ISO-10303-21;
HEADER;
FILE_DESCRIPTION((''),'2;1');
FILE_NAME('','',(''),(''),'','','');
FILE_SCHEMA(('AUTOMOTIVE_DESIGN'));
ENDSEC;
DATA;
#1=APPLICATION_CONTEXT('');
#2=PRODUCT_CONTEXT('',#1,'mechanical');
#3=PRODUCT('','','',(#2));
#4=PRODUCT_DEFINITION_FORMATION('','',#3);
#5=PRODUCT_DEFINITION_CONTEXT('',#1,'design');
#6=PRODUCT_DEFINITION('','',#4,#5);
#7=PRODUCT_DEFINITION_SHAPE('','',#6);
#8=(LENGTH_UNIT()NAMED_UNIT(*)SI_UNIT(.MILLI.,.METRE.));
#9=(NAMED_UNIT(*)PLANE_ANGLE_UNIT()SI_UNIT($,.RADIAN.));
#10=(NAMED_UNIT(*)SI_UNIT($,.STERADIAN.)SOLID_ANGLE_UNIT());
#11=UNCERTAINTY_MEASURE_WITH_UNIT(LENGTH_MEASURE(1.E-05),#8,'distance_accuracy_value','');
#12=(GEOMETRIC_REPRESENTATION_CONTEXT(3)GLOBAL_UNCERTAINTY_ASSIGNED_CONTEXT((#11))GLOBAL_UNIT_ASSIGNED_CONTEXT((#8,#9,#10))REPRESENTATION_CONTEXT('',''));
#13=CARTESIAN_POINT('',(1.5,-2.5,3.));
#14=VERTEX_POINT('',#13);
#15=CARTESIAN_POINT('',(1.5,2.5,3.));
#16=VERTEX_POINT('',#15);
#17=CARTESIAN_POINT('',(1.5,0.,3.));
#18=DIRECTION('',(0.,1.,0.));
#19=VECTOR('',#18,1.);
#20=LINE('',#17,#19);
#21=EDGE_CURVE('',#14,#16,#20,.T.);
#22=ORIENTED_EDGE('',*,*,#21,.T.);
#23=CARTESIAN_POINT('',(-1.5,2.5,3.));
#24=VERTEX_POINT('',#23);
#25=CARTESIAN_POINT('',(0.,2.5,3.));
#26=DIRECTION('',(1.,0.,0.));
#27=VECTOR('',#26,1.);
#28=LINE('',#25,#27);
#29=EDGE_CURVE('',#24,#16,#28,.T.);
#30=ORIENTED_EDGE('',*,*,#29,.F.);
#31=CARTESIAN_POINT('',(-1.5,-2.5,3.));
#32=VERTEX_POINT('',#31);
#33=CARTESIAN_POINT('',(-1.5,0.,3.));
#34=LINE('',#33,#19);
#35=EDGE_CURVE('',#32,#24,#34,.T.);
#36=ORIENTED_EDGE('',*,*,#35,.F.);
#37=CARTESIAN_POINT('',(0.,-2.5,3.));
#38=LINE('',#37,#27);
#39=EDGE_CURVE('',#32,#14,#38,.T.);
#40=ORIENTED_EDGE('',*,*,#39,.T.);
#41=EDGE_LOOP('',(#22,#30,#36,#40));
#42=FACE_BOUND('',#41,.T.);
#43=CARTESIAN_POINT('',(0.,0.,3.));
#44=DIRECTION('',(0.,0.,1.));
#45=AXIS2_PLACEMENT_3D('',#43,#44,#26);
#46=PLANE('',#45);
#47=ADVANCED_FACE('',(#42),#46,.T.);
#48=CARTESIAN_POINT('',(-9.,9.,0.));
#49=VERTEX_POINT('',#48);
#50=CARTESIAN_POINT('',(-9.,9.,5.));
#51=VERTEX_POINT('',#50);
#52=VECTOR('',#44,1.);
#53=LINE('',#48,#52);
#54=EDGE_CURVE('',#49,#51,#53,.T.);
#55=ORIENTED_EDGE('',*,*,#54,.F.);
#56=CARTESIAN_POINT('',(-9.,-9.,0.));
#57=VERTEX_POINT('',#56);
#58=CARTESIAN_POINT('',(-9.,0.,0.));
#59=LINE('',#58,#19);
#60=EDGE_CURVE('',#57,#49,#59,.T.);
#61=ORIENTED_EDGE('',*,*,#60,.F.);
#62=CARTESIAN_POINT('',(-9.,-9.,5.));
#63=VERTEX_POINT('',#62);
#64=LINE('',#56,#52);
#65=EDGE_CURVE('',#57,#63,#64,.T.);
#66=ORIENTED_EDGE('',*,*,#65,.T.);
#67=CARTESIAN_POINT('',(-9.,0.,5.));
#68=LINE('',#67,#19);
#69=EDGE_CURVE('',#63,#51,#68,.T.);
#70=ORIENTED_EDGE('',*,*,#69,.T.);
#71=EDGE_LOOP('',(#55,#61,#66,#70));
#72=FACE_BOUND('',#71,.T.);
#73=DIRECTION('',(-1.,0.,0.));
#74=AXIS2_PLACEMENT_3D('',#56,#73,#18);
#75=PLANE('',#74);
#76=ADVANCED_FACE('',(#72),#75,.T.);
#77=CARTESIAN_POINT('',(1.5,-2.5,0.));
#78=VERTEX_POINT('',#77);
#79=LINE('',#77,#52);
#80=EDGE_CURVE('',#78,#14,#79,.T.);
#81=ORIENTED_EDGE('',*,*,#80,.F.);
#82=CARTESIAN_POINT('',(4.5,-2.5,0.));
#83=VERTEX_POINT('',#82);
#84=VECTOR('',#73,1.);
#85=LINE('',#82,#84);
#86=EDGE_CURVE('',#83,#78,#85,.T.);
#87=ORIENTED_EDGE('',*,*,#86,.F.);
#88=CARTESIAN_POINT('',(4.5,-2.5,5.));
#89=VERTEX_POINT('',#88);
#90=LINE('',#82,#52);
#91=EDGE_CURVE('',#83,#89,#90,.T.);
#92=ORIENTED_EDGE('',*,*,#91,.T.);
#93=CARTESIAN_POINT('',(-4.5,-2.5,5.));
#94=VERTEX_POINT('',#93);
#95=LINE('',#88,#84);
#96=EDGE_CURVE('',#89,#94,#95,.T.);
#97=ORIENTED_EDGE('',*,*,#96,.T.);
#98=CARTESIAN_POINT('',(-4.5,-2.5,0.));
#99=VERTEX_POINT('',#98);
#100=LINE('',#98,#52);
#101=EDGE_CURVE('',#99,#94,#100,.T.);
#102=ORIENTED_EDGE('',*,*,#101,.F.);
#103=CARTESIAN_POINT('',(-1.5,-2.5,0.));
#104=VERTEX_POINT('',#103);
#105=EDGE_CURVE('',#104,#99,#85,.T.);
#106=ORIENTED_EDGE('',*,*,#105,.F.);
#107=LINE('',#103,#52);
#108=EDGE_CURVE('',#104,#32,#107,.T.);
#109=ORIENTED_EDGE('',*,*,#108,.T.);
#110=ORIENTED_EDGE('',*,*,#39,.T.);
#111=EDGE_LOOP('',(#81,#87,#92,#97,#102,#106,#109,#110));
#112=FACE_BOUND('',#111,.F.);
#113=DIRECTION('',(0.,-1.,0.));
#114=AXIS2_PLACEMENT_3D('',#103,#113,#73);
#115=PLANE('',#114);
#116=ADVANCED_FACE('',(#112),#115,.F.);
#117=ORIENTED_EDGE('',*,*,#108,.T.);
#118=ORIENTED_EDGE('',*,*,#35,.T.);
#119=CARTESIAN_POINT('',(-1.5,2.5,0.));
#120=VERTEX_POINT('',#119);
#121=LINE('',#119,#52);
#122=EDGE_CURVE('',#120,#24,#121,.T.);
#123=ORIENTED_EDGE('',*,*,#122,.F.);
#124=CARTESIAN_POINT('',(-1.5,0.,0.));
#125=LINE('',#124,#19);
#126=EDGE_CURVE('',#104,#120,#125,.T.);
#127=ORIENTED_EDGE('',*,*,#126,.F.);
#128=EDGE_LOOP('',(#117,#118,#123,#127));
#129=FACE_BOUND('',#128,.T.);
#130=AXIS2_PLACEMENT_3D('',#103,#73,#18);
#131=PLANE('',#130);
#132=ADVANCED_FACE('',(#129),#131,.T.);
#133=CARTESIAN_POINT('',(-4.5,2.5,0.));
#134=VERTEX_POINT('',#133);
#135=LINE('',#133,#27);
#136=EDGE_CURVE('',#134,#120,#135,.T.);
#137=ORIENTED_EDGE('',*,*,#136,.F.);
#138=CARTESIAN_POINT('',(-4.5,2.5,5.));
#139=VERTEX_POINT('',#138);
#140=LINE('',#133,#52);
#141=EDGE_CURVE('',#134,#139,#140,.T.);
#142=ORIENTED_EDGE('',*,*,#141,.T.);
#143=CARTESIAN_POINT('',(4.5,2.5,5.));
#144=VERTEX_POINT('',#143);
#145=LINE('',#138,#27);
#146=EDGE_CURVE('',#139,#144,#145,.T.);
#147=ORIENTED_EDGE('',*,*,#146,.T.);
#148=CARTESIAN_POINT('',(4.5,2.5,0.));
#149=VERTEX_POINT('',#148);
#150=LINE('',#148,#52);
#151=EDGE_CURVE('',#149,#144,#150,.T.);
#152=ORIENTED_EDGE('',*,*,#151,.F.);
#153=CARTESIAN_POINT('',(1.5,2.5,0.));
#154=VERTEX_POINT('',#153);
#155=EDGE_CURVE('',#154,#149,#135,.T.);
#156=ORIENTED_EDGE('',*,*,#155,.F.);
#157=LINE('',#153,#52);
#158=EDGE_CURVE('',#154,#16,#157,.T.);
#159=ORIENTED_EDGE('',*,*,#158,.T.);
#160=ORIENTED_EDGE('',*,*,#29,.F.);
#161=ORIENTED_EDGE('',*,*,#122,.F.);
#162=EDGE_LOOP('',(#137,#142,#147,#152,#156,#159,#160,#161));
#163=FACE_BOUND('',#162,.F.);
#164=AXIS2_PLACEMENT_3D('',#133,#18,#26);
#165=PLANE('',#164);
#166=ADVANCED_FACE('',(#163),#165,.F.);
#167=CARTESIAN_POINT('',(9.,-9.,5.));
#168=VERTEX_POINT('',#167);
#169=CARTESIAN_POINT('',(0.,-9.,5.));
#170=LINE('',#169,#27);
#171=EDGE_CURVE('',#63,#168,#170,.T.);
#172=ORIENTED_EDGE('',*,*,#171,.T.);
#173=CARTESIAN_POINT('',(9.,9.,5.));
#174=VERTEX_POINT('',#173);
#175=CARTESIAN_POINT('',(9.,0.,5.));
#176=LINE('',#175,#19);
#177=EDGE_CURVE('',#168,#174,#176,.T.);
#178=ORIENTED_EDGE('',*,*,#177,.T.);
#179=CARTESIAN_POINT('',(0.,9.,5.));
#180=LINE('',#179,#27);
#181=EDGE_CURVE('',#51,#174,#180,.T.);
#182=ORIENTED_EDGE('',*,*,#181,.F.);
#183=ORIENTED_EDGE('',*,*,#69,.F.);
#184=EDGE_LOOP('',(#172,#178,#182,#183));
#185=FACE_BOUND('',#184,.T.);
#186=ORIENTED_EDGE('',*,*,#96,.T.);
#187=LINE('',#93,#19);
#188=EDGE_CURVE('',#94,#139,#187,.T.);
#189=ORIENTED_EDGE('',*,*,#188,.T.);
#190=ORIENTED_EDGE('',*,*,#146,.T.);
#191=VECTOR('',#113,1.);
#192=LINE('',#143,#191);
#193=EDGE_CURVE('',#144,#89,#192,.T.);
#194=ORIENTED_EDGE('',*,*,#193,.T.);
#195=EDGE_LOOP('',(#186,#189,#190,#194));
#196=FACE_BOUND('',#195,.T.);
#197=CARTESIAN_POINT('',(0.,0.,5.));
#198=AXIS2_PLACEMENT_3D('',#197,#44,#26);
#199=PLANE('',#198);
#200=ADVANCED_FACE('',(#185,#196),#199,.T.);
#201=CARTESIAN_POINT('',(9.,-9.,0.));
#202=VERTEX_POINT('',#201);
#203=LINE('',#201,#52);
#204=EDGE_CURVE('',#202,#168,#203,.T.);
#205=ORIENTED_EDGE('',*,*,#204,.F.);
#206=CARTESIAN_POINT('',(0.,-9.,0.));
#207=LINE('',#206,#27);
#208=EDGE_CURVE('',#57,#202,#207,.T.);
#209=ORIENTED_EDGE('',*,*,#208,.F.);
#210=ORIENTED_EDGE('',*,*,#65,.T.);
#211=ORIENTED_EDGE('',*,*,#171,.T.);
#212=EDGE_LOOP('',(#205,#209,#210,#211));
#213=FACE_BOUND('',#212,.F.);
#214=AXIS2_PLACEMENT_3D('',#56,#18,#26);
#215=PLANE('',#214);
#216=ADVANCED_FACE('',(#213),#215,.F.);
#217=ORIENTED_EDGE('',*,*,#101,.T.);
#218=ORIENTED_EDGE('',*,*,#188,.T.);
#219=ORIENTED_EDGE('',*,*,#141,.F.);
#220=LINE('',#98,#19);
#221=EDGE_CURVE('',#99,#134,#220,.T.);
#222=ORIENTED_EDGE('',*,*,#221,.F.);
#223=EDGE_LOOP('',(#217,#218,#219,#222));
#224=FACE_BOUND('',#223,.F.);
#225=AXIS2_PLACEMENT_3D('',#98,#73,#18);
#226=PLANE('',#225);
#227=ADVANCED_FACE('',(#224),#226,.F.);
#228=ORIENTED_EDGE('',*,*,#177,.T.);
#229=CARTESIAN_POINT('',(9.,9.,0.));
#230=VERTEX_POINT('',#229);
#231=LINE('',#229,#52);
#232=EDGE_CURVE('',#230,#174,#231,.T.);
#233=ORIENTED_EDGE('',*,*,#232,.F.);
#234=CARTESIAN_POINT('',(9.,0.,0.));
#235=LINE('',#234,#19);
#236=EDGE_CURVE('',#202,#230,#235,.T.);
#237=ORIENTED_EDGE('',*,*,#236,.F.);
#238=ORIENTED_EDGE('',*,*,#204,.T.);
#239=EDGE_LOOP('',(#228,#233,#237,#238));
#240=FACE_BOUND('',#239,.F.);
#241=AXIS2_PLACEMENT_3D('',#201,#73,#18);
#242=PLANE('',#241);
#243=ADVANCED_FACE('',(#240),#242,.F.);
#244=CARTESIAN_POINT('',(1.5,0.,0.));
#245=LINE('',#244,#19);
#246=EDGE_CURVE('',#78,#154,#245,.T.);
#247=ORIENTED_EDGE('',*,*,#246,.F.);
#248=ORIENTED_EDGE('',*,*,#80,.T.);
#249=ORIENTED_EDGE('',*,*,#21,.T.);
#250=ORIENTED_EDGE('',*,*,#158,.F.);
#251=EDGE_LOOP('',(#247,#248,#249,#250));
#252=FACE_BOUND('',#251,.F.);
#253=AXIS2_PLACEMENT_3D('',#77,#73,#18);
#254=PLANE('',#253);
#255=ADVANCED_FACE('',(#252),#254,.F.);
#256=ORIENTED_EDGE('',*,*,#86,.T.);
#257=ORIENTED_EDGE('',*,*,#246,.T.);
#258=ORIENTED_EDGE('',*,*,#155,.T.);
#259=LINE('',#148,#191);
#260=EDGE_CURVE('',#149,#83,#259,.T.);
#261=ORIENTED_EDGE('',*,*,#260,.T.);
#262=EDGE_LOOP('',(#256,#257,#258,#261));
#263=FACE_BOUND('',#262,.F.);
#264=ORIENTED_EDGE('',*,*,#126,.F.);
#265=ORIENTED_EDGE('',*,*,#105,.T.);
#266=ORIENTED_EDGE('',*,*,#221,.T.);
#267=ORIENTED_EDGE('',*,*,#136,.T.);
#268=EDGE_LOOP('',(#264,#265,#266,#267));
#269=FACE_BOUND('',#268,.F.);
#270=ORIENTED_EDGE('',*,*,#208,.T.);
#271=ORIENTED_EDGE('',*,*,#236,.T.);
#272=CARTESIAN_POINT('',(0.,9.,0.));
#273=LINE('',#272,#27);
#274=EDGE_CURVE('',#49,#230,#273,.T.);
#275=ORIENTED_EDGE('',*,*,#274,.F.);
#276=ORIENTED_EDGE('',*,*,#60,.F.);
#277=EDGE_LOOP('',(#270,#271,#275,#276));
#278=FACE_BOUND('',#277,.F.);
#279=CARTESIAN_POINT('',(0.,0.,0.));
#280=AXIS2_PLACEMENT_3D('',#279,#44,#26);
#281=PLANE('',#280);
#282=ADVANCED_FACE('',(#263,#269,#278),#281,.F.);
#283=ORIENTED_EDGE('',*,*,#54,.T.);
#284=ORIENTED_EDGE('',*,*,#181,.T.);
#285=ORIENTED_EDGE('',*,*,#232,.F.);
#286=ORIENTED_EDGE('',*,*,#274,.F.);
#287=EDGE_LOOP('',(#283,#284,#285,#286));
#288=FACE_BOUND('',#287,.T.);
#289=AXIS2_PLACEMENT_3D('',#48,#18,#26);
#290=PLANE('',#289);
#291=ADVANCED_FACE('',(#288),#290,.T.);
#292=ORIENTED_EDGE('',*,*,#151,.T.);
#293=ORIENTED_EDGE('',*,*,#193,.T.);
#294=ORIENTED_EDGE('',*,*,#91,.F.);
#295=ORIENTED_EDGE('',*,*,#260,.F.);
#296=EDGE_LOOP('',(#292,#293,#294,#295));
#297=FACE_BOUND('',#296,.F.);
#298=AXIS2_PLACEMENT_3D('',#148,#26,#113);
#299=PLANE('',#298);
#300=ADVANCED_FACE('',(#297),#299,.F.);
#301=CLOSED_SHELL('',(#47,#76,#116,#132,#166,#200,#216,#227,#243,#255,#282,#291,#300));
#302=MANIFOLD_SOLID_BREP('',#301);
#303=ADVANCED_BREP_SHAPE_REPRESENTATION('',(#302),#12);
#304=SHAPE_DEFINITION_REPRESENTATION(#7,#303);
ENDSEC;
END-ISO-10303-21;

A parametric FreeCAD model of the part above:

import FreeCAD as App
import Part
import Sketcher

doc = App.newDocument("Part")
body = doc.addObject("PartDesign::Body", "Body")

# Sketch on XY plane
sketch1 = doc.addObject("Sketcher::SketchObject", "Sketch")
body.addObject(sketch1)
sketch1.AttachmentSupport = (doc.XY_Plane, [""])
sketch1.MapMode = "FlatFace"
sketch1.addGeometry([
    Part.LineSegment(App.Vector(-9, 9, 0), App.Vector(-9, -9, 0)),  # 0
    Part.LineSegment(App.Vector(-9, -9, 0), App.Vector(9, -9, 0)),  # 1
    Part.LineSegment(App.Vector(9, -9, 0), App.Vector(9, 9, 0)),  # 2
    Part.LineSegment(App.Vector(9, 9, 0), App.Vector(-9, 9, 0)),  # 3
    Part.LineSegment(App.Vector(-4.5, 2.5, 0), App.Vector(-1.5, 2.5, 0)),  # 4
    Part.LineSegment(App.Vector(-1.5, 2.5, 0), App.Vector(-1.5, -2.5, 0)),  # 5
    Part.LineSegment(App.Vector(-1.5, -2.5, 0), App.Vector(-4.5, -2.5, 0)),  # 6
    Part.LineSegment(App.Vector(-4.5, -2.5, 0), App.Vector(-4.5, 2.5, 0)),  # 7
    Part.LineSegment(App.Vector(1.5, 2.5, 0), App.Vector(4.5, 2.5, 0)),  # 8
    Part.LineSegment(App.Vector(4.5, 2.5, 0), App.Vector(4.5, -2.5, 0)),  # 9
    Part.LineSegment(App.Vector(4.5, -2.5, 0), App.Vector(1.5, -2.5, 0)),  # 10
    Part.LineSegment(App.Vector(1.5, -2.5, 0), App.Vector(1.5, 2.5, 0)),  # 11
], False)
sketch1.addConstraint([
    Sketcher.Constraint("Coincident", 0, 2, 1, 1),
    Sketcher.Constraint("Coincident", 1, 2, 2, 1),
    Sketcher.Constraint("Coincident", 2, 2, 3, 1),
    Sketcher.Constraint("Coincident", 3, 2, 0, 1),
    Sketcher.Constraint("Coincident", 4, 2, 5, 1),
    Sketcher.Constraint("Coincident", 5, 2, 6, 1),
    Sketcher.Constraint("Coincident", 6, 2, 7, 1),
    Sketcher.Constraint("Coincident", 7, 2, 4, 1),
    Sketcher.Constraint("Coincident", 8, 2, 9, 1),
    Sketcher.Constraint("Coincident", 9, 2, 10, 1),
    Sketcher.Constraint("Coincident", 10, 2, 11, 1),
    Sketcher.Constraint("Coincident", 11, 2, 8, 1),
    Sketcher.Constraint("Vertical", 0),
    Sketcher.Constraint("Horizontal", 1),
    Sketcher.Constraint("Vertical", 2),
    Sketcher.Constraint("Horizontal", 3),
    Sketcher.Constraint("Horizontal", 4),
    Sketcher.Constraint("Vertical", 5),
    Sketcher.Constraint("Horizontal", 6),
    Sketcher.Constraint("Vertical", 7),
    Sketcher.Constraint("Horizontal", 8),
    Sketcher.Constraint("Vertical", 9),
    Sketcher.Constraint("Horizontal", 10),
    Sketcher.Constraint("Vertical", 11),
    Sketcher.Constraint("Symmetric", 0, 2, 2, 2, -1, 1),
    Sketcher.Constraint("Symmetric", 6, 2, 8, 2, -1, 1),
    Sketcher.Constraint("Symmetric", 4, 2, 10, 2, -1, 1),
    Sketcher.Constraint("Horizontal", 7, 2, 8, 2),
    Sketcher.Constraint("Equal", 3, 0),
    Sketcher.Constraint("DistanceX", 1, 1, 1, 2, 18.0),
    Sketcher.Constraint("DistanceX", 4, 1, 4, 2, 3.0),
    Sketcher.Constraint("DistanceY", 5, 2, 5, 1, 5.0),
    Sketcher.Constraint("DistanceX", 4, 2, 8, 2, 6.0),
])
pad1 = doc.addObject("PartDesign::Pad", "Pad")
body.addObject(pad1)
pad1.Profile = sketch1
pad1.Length = 5

# Sketch on XY plane
sketch2 = doc.addObject("Sketcher::SketchObject", "Sketch001")
body.addObject(sketch2)
sketch2.AttachmentSupport = (doc.XY_Plane, [""])
sketch2.MapMode = "FlatFace"
sketch2.AttachmentOffset = App.Placement(App.Vector(0, 0, 5), App.Rotation())
sketch2.addGeometry([
    Part.LineSegment(App.Vector(-1.5, 2.5, 0), App.Vector(-1.5, -2.5, 0)),
    Part.LineSegment(App.Vector(-1.5, -2.5, 0), App.Vector(1.5, -2.5, 0)),
    Part.LineSegment(App.Vector(1.5, -2.5, 0), App.Vector(1.5, 2.5, 0)),
    Part.LineSegment(App.Vector(1.5, 2.5, 0), App.Vector(-1.5, 2.5, 0)),
], False)
sketch2.addConstraint([
    Sketcher.Constraint("Coincident", 0, 2, 1, 1),
    Sketcher.Constraint("Coincident", 1, 2, 2, 1),
    Sketcher.Constraint("Coincident", 2, 2, 3, 1),
    Sketcher.Constraint("Coincident", 3, 2, 0, 1),
    Sketcher.Constraint("Vertical", 0),
    Sketcher.Constraint("Horizontal", 1),
    Sketcher.Constraint("Vertical", 2),
    Sketcher.Constraint("Horizontal", 3),
    Sketcher.Constraint("Symmetric", 0, 2, 2, 2, -1, 1),
    Sketcher.Constraint("DistanceX", 1, 1, 1, 2, 3.0),
    Sketcher.Constraint("DistanceY", 0, 2, 0, 1, 5.0),
])
pocket1 = doc.addObject("PartDesign::Pocket", "Pocket")
body.addObject(pocket1)
pocket1.Profile = sketch2
pocket1.Length = 2

doc.recompute()
